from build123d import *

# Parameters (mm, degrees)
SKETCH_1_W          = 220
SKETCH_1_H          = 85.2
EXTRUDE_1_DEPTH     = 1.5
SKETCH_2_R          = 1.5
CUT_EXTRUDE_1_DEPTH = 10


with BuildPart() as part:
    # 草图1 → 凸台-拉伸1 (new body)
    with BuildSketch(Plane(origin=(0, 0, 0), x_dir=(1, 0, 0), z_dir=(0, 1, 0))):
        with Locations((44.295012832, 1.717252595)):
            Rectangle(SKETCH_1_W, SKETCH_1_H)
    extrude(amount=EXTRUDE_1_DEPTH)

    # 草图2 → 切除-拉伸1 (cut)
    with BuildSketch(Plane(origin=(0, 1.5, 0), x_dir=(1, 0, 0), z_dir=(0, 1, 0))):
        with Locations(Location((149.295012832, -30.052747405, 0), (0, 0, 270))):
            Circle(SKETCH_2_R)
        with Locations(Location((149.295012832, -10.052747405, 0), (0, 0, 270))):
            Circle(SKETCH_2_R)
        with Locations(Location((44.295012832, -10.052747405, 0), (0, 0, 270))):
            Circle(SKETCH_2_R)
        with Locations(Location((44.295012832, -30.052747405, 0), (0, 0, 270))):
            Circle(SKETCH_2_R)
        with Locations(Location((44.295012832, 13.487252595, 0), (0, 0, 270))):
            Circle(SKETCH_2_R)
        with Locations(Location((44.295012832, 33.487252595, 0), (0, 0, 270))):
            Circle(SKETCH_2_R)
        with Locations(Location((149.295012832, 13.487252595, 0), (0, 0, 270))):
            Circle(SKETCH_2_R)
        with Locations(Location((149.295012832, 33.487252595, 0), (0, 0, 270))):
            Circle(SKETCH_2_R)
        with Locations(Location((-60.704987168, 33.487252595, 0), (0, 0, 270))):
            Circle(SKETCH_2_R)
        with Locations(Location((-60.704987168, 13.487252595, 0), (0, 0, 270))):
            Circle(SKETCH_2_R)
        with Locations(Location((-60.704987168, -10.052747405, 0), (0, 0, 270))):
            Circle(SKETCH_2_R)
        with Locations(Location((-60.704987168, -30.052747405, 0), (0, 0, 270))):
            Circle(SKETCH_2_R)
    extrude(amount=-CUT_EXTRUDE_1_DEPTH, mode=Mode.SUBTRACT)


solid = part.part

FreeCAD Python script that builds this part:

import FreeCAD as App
import Part
import Sketcher
from FreeCAD import Vector

doc = App.newDocument("Part")
body = doc.addObject("PartDesign::Body", "Body")

sketch1 = body.newObject("Sketcher::SketchObject", "Sketch")
sketch1.AttachmentSupport = (doc.getObject("XZ_Plane"), [""])
sketch1.MapMode = "FlatFace"
sketch1.addGeometry([
    Part.LineSegment(Vector(-66, -44, 0), Vector(-66, 41, 0)),
    Part.LineSegment(Vector(-66, 41, 0), Vector(154, 41, 0)),
    Part.LineSegment(Vector(154, 41, 0), Vector(154, -44, 0)),
    Part.LineSegment(Vector(154, -44, 0), Vector(-66, -44, 0)),
], False)
sketch1.addConstraint([
    Sketcher.Constraint("Coincident", 0, 2, 1, 1),
    Sketcher.Constraint("Coincident", 1, 2, 2, 1),
    Sketcher.Constraint("Coincident", 2, 2, 3, 1),
    Sketcher.Constraint("Coincident", 3, 2, 0, 1),
    Sketcher.Constraint("Vertical", 0),
    Sketcher.Constraint("Horizontal", 1),
    Sketcher.Constraint("Vertical", 2),
    Sketcher.Constraint("Horizontal", 3),
    Sketcher.Constraint("DistanceX", 1, 1, 1, 2, 220.0),
    Sketcher.Constraint("DistanceY", 0, 1, 0, 2, 85.2),
    Sketcher.Constraint("DistanceX", 0, 2, -1, 1, 65.704987),
    Sketcher.Constraint("DistanceY", -1, 1, 0, 2, 40.882747),
])
pad1 = body.newObject("PartDesign::Pad", "Pad")
pad1.Profile = sketch1
pad1.Length = 1.5
pad1.Reversed = True

sketch2 = body.newObject("Sketcher::SketchObject", "Sketch001")
sketch2.AttachmentSupport = (doc.getObject("XZ_Plane"), [""])
sketch2.MapMode = "FlatFace"
sketch2.AttachmentOffset = App.Placement(Vector(0, 0, -1.5), App.Rotation())
sketch2.addGeometry([
    Part.Circle(Vector(149.3, 30.1, 0), Vector(0, 0, 1), 1.5),
    Part.Circle(Vector(149.3, 10.1, 0), Vector(0, 0, 1), 1.5),
    Part.Circle(Vector(44.3, 10.1, 0), Vector(0, 0, 1), 1.5),
    Part.Circle(Vector(44.3, 30.1, 0), Vector(0, 0, 1), 1.5),
    Part.Circle(Vector(44.3, -13.5, 0), Vector(0, 0, 1), 1.5),
    Part.Circle(Vector(44.3, -33.5, 0), Vector(0, 0, 1), 1.5),
    Part.Circle(Vector(149.3, -13.5, 0), Vector(0, 0, 1), 1.5),
    Part.Circle(Vector(149.3, -33.5, 0), Vector(0, 0, 1), 1.5),
    Part.Circle(Vector(-60.7, -33.5, 0), Vector(0, 0, 1), 1.5),
    Part.Circle(Vector(-60.7, -13.5, 0), Vector(0, 0, 1), 1.5),
    Part.Circle(Vector(-60.7, 10.1, 0), Vector(0, 0, 1), 1.5),
    Part.Circle(Vector(-60.7, 30.1, 0), Vector(0, 0, 1), 1.5),
], False)
sketch2.addConstraint([
    Sketcher.Constraint("Equal", 0, 1),
    Sketcher.Constraint("Equal", 1, 2),
    Sketcher.Constraint("Equal", 2, 3),
    Sketcher.Constraint("Equal", 3, 4),
    Sketcher.Constraint("Equal", 4, 5),
    Sketcher.Constraint("Equal", 5, 6),
    Sketcher.Constraint("Equal", 6, 7),
    Sketcher.Constraint("Equal", 7, 8),
    Sketcher.Constraint("Equal", 8, 9),
    Sketcher.Constraint("Equal", 9, 10),
    Sketcher.Constraint("Equal", 10, 11),
    Sketcher.Constraint("Horizontal", 1, 3, 2, 3),
    Sketcher.Constraint("Horizontal", 0, 3, 3, 3),
    Sketcher.Constraint("Horizontal", 4, 3, 6, 3),
    Sketcher.Constraint("Horizontal", 5, 3, 7, 3),
    Sketcher.Constraint("Horizontal", 7, 3, 8, 3),
    Sketcher.Constraint("Horizontal", 6, 3, 9, 3),
    Sketcher.Constraint("Horizontal", 2, 3, 10, 3),
    Sketcher.Constraint("Horizontal", 3, 3, 11, 3),
    Sketcher.Constraint("Vertical", 0, 3, 1, 3),
    Sketcher.Constraint("Vertical", 2, 3, 3, 3),
    Sketcher.Constraint("Vertical", 3, 3, 4, 3),
    Sketcher.Constraint("Vertical", 4, 3, 5, 3),
    Sketcher.Constraint("Vertical", 1, 3, 6, 3),
    Sketcher.Constraint("Vertical", 6, 3, 7, 3),
    Sketcher.Constraint("Vertical", 8, 3, 9, 3),
    Sketcher.Constraint("Vertical", 9, 3, 10, 3),
    Sketcher.Constraint("Vertical", 10, 3, 11, 3),
    Sketcher.Constraint("Diameter", 0, 3.0),
    Sketcher.Constraint("DistanceY", 1, 3, 0, 3, 20.0),
    Sketcher.Constraint("DistanceX", 2, 3, 1, 3, 105.0),
    Sketcher.Constraint("DistanceY", 5, 3, 4, 3, 20.0),
    Sketcher.Constraint("DistanceX", 8, 3, 5, 3, 105.0),
    Sketcher.Constraint("DistanceY", 4, 3, 2, 3, 23.54),
    Sketcher.Constraint("DistanceX", -1, 1, 0, 3, 149.295013),
    Sketcher.Constraint("DistanceY", -1, 1, 0, 3, 30.052747),
])
pocket1 = body.newObject("PartDesign::Pocket", "Pocket")
pocket1.Profile = sketch2
pocket1.Length = 10
pocket1.Reversed = True

doc.recompute()
